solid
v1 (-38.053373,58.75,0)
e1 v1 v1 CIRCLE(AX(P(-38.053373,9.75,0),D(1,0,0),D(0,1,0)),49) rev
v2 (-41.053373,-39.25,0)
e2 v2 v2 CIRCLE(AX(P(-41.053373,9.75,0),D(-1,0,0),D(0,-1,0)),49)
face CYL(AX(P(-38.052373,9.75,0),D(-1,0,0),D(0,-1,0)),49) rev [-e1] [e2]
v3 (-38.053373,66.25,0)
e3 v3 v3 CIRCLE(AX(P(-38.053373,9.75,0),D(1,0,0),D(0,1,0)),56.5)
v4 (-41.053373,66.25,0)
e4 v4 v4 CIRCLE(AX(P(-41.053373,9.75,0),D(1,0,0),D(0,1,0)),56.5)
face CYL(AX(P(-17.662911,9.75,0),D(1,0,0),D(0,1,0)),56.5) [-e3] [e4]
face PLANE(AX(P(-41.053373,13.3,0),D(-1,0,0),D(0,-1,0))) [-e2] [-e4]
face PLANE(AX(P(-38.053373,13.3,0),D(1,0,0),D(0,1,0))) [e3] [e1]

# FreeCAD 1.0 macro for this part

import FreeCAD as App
import Part
import Sketcher

V = App.Vector


def add_polygon(sketch, points):
    """Adds a closed chain of lines whose ends are joined by coincident constraints."""
    first, n = sketch.GeometryCount, len(points)
    for a, b in zip(points, points[1:] + points[:1]):
        sketch.addGeometry(Part.LineSegment(App.Vector(*a, 0), App.Vector(*b, 0)), False)
    for i in range(n):
        sketch.addConstraint(Sketcher.Constraint("Coincident", first + i, 2, first + (i + 1) % n, 1))

doc = App.newDocument("Part")
body = doc.addObject("PartDesign::Body", "Body")

# Sketch on XY plane
sketch1 = body.newObject("Sketcher::SketchObject", "Sketch")
sketch1.AttachmentSupport = (doc.getObject("XY_Plane"), [""])
sketch1.MapMode = "FlatFace"
add_polygon(sketch1, [(-41.1, 66.2), (-41.1, 13.3), (-38.1, 13.3), (-38.1, 66.2)])  # lines 0-3
sketch1.addGeometry(Part.LineSegment(V(-38.1, 9.8, 0), V(-41.1, 9.8, 0)), True)  # axis
sketch1.addConstraint([
    Sketcher.Constraint("Vertical", 0),
    Sketcher.Constraint("Horizontal", 1),
    Sketcher.Constraint("Vertical", 2),
    Sketcher.Constraint("Horizontal", 3),
    Sketcher.Constraint("Horizontal", 4),
    Sketcher.Constraint("Vertical", 2, 2, 4, 1),
    Sketcher.Constraint("Vertical", 3, 2, 4, 2),
    Sketcher.Constraint("DistanceX", 1, 1, 1, 2, 3.0),
    Sketcher.Constraint("DistanceY", 0, 2, 0, 1, 52.95),
    Sketcher.Constraint("DistanceY", -1, 1, 0, 2, 13.3),
    Sketcher.Constraint("DistanceY", 4, 1, 2, 2, 56.5),
    Sketcher.Constraint("DistanceX", 0, 2, -1, 1, 41.053373),
])
revolution = body.newObject("PartDesign::Revolution", "Revolution")
revolution.Profile = sketch1
revolution.ReferenceAxis = (sketch1, ["Axis0"])
revolution.Angle = 360

# Sketch on YZ plane
sketch2 = body.newObject("Sketcher::SketchObject", "Sketch001")
sketch2.AttachmentSupport = (doc.getObject("YZ_Plane"), [""])
sketch2.MapMode = "FlatFace"
sketch2.AttachmentOffset = App.Placement(V(0, 0, -41.053373), App.Rotation())
sketch2.addGeometry([
    Part.Circle(V(3.4, 6.4, 0), V(0, 0, 1), 2.4),
    Part.Circle(V(3.4, -6.4, 0), V(0, 0, 1), 2.4),
    Part.Circle(V(16.1, -6.4, 0), V(0, 0, 1), 2.4),
    Part.Circle(V(16.1, 6.4, 0), V(0, 0, 1), 2.4),
], False)
sketch2.addConstraint([
    Sketcher.Constraint("Equal", 0, 1),
    Sketcher.Constraint("Equal", 1, 2),
    Sketcher.Constraint("Equal", 2, 3),
    Sketcher.Constraint("Symmetric", 0, 3, 1, 3, -1),
    Sketcher.Constraint("Symmetric", 2, 3, 3, 3, -1),
    Sketcher.Constraint("Horizontal", 1, 3, 2, 3),
    Sketcher.Constraint("Diameter", 0, 4.7),
    Sketcher.Constraint("DistanceX", -1, 1, 0, 3, 3.386039),
    Sketcher.Constraint("DistanceY", -1, 1, 0, 3, 6.363961),
    Sketcher.Constraint("DistanceX", -1, 1, 2, 3, 16.113961),
])
doc.recompute()
hole = body.newObject("PartDesign::Hole", "Hole")
hole.Profile = sketch2
hole.ThreadType = "None"
hole.Diameter = 4.7
hole.DepthType = "ThroughAll"
hole.Reversed = True

# Sketch on YZ plane
sketch3 = body.newObject("Sketcher::SketchObject", "Sketch002")
sketch3.AttachmentSupport = (doc.getObject("YZ_Plane"), [""])
sketch3.MapMode = "FlatFace"
sketch3.AttachmentOffset = App.Placement(V(0, 0, -38.053373), App.Rotation())
sketch3.addGeometry(Part.Ellipse(V(50.390119, 5.377638, 0), V(39.744392, 30.109571, 0), V(32.684516, 23.02733, 0)), False)
sketch3.addConstraint(Sketcher.Constraint("Block", 0))
pocket1 = body.newObject("PartDesign::Pocket", "Pocket")
pocket1.Profile = sketch3
pocket1.Length = 3
doc.recompute()

datumline = body.newObject("PartDesign::Line", "DatumLine")
datumline.Placement = App.Placement(V(0, 9.75, 0), App.Rotation(V(0, 0, 1), V(-1, 0, 0)))
polarpattern = body.newObject("PartDesign::PolarPattern", "PolarPattern")
polarpattern.Originals = [pocket1]
polarpattern.Axis = (datumline, [""])
polarpattern.Angle = 360
polarpattern.Occurrences = 4
body.Tip = polarpattern

# Sketch on YZ plane
sketch4 = body.newObject("Sketcher::SketchObject", "Sketch003")
sketch4.AttachmentSupport = (doc.getObject("YZ_Plane"), [""])
sketch4.MapMode = "FlatFace"
sketch4.AttachmentOffset = App.Placement(V(0, 0, -41.053373), App.Rotation())
sketch4.addGeometry(Part.Circle(V(10, 0, 0), V(0, 0, 1), 49), False)
sketch4.addConstraint([
    Sketcher.Constraint("PointOnObject", 0, 3, -1),
    Sketcher.Constraint("Diameter", 0, 98.0),
    Sketcher.Constraint("DistanceX", -1, 1, 0, 3, 9.75),
])
pocket2 = body.newObject("PartDesign::Pocket", "Pocket001")
pocket2.Profile = sketch4
pocket2.Length = 3
pocket2.Reversed = True

doc.recompute()
